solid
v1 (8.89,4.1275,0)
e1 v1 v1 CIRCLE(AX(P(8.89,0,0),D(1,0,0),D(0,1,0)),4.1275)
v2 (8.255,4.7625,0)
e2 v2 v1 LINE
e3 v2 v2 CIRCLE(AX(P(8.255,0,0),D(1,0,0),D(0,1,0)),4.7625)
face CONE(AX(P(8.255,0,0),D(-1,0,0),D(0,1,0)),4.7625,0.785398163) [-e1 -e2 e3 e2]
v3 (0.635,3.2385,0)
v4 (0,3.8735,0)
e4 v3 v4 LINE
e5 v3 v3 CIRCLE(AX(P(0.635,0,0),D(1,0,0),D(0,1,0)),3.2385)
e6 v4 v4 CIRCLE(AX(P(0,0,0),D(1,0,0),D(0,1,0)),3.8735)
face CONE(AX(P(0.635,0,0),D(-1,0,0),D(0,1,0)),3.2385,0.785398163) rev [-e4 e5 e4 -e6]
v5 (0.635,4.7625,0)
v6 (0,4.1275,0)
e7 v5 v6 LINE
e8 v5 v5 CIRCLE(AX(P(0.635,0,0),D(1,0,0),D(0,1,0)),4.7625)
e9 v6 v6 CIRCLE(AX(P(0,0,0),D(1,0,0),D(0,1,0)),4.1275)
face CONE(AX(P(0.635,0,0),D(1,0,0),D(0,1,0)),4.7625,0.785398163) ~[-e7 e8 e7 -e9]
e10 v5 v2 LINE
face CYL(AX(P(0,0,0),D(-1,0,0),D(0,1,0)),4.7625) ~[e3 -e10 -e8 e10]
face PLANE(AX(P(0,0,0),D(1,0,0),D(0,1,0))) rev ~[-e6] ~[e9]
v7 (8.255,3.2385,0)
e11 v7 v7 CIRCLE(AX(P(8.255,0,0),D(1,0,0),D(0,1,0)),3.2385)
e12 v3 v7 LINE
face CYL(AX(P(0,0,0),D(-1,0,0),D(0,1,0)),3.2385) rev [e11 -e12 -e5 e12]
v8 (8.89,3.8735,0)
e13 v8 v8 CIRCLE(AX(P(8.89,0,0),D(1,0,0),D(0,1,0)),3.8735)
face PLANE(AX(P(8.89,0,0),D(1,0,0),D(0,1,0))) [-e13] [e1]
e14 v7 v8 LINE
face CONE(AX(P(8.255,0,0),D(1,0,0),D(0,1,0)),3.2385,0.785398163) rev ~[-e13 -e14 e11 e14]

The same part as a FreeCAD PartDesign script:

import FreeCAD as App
import Part
import Sketcher
Q = App.Units.Quantity


def edges_at(feature, points):
    """Names of the edges that pass closest to the given points."""
    edges = feature.Shape.Edges
    near = lambda p: min(range(len(edges)), key=lambda i: edges[i].distToShape(Part.Vertex(*p))[0])
    return sorted({f"Edge{near(p) + 1}" for p in points})

doc = App.newDocument("Part")
body = doc.addObject("PartDesign::Body", "Body")

# Sketch on YZ plane
sketch1 = body.newObject("Sketcher::SketchObject", "Sketch")
sketch1.AttachmentSupport = (doc.getObject("YZ_Plane"), [""])
sketch1.MapMode = "FlatFace"
sketch1.addGeometry([
    Part.Circle(App.Vector(0, 0, 0), App.Vector(0, 0, 1), 4.7625),
    Part.Circle(App.Vector(0, 0, 0), App.Vector(0, 0, 1), 3.2385),
], False)
sketch1.addConstraint([
    Sketcher.Constraint("Coincident", 0, 3, -1, 1),
    Sketcher.Constraint("Coincident", 1, 3, -1, 1),
    Sketcher.Constraint("Diameter", 0, Q("0.375 in")),
    Sketcher.Constraint("Diameter", 1, Q("0.255 in")),
])
pad1 = body.newObject("PartDesign::Pad", "Pad")
pad1.Profile = sketch1
pad1.Length = Q("0.35 in")
doc.recompute()

chamfer = body.newObject("PartDesign::Chamfer", "Chamfer")
chamfer.Base = (pad1, edges_at(pad1, [
    (8.89, -3.239, 0),
    (8.89, -4.763, 0),
    (0, -3.239, 0),
    (0, -4.763, 0),
]))
chamfer.Size = Q("0.025 in")

doc.recompute()
